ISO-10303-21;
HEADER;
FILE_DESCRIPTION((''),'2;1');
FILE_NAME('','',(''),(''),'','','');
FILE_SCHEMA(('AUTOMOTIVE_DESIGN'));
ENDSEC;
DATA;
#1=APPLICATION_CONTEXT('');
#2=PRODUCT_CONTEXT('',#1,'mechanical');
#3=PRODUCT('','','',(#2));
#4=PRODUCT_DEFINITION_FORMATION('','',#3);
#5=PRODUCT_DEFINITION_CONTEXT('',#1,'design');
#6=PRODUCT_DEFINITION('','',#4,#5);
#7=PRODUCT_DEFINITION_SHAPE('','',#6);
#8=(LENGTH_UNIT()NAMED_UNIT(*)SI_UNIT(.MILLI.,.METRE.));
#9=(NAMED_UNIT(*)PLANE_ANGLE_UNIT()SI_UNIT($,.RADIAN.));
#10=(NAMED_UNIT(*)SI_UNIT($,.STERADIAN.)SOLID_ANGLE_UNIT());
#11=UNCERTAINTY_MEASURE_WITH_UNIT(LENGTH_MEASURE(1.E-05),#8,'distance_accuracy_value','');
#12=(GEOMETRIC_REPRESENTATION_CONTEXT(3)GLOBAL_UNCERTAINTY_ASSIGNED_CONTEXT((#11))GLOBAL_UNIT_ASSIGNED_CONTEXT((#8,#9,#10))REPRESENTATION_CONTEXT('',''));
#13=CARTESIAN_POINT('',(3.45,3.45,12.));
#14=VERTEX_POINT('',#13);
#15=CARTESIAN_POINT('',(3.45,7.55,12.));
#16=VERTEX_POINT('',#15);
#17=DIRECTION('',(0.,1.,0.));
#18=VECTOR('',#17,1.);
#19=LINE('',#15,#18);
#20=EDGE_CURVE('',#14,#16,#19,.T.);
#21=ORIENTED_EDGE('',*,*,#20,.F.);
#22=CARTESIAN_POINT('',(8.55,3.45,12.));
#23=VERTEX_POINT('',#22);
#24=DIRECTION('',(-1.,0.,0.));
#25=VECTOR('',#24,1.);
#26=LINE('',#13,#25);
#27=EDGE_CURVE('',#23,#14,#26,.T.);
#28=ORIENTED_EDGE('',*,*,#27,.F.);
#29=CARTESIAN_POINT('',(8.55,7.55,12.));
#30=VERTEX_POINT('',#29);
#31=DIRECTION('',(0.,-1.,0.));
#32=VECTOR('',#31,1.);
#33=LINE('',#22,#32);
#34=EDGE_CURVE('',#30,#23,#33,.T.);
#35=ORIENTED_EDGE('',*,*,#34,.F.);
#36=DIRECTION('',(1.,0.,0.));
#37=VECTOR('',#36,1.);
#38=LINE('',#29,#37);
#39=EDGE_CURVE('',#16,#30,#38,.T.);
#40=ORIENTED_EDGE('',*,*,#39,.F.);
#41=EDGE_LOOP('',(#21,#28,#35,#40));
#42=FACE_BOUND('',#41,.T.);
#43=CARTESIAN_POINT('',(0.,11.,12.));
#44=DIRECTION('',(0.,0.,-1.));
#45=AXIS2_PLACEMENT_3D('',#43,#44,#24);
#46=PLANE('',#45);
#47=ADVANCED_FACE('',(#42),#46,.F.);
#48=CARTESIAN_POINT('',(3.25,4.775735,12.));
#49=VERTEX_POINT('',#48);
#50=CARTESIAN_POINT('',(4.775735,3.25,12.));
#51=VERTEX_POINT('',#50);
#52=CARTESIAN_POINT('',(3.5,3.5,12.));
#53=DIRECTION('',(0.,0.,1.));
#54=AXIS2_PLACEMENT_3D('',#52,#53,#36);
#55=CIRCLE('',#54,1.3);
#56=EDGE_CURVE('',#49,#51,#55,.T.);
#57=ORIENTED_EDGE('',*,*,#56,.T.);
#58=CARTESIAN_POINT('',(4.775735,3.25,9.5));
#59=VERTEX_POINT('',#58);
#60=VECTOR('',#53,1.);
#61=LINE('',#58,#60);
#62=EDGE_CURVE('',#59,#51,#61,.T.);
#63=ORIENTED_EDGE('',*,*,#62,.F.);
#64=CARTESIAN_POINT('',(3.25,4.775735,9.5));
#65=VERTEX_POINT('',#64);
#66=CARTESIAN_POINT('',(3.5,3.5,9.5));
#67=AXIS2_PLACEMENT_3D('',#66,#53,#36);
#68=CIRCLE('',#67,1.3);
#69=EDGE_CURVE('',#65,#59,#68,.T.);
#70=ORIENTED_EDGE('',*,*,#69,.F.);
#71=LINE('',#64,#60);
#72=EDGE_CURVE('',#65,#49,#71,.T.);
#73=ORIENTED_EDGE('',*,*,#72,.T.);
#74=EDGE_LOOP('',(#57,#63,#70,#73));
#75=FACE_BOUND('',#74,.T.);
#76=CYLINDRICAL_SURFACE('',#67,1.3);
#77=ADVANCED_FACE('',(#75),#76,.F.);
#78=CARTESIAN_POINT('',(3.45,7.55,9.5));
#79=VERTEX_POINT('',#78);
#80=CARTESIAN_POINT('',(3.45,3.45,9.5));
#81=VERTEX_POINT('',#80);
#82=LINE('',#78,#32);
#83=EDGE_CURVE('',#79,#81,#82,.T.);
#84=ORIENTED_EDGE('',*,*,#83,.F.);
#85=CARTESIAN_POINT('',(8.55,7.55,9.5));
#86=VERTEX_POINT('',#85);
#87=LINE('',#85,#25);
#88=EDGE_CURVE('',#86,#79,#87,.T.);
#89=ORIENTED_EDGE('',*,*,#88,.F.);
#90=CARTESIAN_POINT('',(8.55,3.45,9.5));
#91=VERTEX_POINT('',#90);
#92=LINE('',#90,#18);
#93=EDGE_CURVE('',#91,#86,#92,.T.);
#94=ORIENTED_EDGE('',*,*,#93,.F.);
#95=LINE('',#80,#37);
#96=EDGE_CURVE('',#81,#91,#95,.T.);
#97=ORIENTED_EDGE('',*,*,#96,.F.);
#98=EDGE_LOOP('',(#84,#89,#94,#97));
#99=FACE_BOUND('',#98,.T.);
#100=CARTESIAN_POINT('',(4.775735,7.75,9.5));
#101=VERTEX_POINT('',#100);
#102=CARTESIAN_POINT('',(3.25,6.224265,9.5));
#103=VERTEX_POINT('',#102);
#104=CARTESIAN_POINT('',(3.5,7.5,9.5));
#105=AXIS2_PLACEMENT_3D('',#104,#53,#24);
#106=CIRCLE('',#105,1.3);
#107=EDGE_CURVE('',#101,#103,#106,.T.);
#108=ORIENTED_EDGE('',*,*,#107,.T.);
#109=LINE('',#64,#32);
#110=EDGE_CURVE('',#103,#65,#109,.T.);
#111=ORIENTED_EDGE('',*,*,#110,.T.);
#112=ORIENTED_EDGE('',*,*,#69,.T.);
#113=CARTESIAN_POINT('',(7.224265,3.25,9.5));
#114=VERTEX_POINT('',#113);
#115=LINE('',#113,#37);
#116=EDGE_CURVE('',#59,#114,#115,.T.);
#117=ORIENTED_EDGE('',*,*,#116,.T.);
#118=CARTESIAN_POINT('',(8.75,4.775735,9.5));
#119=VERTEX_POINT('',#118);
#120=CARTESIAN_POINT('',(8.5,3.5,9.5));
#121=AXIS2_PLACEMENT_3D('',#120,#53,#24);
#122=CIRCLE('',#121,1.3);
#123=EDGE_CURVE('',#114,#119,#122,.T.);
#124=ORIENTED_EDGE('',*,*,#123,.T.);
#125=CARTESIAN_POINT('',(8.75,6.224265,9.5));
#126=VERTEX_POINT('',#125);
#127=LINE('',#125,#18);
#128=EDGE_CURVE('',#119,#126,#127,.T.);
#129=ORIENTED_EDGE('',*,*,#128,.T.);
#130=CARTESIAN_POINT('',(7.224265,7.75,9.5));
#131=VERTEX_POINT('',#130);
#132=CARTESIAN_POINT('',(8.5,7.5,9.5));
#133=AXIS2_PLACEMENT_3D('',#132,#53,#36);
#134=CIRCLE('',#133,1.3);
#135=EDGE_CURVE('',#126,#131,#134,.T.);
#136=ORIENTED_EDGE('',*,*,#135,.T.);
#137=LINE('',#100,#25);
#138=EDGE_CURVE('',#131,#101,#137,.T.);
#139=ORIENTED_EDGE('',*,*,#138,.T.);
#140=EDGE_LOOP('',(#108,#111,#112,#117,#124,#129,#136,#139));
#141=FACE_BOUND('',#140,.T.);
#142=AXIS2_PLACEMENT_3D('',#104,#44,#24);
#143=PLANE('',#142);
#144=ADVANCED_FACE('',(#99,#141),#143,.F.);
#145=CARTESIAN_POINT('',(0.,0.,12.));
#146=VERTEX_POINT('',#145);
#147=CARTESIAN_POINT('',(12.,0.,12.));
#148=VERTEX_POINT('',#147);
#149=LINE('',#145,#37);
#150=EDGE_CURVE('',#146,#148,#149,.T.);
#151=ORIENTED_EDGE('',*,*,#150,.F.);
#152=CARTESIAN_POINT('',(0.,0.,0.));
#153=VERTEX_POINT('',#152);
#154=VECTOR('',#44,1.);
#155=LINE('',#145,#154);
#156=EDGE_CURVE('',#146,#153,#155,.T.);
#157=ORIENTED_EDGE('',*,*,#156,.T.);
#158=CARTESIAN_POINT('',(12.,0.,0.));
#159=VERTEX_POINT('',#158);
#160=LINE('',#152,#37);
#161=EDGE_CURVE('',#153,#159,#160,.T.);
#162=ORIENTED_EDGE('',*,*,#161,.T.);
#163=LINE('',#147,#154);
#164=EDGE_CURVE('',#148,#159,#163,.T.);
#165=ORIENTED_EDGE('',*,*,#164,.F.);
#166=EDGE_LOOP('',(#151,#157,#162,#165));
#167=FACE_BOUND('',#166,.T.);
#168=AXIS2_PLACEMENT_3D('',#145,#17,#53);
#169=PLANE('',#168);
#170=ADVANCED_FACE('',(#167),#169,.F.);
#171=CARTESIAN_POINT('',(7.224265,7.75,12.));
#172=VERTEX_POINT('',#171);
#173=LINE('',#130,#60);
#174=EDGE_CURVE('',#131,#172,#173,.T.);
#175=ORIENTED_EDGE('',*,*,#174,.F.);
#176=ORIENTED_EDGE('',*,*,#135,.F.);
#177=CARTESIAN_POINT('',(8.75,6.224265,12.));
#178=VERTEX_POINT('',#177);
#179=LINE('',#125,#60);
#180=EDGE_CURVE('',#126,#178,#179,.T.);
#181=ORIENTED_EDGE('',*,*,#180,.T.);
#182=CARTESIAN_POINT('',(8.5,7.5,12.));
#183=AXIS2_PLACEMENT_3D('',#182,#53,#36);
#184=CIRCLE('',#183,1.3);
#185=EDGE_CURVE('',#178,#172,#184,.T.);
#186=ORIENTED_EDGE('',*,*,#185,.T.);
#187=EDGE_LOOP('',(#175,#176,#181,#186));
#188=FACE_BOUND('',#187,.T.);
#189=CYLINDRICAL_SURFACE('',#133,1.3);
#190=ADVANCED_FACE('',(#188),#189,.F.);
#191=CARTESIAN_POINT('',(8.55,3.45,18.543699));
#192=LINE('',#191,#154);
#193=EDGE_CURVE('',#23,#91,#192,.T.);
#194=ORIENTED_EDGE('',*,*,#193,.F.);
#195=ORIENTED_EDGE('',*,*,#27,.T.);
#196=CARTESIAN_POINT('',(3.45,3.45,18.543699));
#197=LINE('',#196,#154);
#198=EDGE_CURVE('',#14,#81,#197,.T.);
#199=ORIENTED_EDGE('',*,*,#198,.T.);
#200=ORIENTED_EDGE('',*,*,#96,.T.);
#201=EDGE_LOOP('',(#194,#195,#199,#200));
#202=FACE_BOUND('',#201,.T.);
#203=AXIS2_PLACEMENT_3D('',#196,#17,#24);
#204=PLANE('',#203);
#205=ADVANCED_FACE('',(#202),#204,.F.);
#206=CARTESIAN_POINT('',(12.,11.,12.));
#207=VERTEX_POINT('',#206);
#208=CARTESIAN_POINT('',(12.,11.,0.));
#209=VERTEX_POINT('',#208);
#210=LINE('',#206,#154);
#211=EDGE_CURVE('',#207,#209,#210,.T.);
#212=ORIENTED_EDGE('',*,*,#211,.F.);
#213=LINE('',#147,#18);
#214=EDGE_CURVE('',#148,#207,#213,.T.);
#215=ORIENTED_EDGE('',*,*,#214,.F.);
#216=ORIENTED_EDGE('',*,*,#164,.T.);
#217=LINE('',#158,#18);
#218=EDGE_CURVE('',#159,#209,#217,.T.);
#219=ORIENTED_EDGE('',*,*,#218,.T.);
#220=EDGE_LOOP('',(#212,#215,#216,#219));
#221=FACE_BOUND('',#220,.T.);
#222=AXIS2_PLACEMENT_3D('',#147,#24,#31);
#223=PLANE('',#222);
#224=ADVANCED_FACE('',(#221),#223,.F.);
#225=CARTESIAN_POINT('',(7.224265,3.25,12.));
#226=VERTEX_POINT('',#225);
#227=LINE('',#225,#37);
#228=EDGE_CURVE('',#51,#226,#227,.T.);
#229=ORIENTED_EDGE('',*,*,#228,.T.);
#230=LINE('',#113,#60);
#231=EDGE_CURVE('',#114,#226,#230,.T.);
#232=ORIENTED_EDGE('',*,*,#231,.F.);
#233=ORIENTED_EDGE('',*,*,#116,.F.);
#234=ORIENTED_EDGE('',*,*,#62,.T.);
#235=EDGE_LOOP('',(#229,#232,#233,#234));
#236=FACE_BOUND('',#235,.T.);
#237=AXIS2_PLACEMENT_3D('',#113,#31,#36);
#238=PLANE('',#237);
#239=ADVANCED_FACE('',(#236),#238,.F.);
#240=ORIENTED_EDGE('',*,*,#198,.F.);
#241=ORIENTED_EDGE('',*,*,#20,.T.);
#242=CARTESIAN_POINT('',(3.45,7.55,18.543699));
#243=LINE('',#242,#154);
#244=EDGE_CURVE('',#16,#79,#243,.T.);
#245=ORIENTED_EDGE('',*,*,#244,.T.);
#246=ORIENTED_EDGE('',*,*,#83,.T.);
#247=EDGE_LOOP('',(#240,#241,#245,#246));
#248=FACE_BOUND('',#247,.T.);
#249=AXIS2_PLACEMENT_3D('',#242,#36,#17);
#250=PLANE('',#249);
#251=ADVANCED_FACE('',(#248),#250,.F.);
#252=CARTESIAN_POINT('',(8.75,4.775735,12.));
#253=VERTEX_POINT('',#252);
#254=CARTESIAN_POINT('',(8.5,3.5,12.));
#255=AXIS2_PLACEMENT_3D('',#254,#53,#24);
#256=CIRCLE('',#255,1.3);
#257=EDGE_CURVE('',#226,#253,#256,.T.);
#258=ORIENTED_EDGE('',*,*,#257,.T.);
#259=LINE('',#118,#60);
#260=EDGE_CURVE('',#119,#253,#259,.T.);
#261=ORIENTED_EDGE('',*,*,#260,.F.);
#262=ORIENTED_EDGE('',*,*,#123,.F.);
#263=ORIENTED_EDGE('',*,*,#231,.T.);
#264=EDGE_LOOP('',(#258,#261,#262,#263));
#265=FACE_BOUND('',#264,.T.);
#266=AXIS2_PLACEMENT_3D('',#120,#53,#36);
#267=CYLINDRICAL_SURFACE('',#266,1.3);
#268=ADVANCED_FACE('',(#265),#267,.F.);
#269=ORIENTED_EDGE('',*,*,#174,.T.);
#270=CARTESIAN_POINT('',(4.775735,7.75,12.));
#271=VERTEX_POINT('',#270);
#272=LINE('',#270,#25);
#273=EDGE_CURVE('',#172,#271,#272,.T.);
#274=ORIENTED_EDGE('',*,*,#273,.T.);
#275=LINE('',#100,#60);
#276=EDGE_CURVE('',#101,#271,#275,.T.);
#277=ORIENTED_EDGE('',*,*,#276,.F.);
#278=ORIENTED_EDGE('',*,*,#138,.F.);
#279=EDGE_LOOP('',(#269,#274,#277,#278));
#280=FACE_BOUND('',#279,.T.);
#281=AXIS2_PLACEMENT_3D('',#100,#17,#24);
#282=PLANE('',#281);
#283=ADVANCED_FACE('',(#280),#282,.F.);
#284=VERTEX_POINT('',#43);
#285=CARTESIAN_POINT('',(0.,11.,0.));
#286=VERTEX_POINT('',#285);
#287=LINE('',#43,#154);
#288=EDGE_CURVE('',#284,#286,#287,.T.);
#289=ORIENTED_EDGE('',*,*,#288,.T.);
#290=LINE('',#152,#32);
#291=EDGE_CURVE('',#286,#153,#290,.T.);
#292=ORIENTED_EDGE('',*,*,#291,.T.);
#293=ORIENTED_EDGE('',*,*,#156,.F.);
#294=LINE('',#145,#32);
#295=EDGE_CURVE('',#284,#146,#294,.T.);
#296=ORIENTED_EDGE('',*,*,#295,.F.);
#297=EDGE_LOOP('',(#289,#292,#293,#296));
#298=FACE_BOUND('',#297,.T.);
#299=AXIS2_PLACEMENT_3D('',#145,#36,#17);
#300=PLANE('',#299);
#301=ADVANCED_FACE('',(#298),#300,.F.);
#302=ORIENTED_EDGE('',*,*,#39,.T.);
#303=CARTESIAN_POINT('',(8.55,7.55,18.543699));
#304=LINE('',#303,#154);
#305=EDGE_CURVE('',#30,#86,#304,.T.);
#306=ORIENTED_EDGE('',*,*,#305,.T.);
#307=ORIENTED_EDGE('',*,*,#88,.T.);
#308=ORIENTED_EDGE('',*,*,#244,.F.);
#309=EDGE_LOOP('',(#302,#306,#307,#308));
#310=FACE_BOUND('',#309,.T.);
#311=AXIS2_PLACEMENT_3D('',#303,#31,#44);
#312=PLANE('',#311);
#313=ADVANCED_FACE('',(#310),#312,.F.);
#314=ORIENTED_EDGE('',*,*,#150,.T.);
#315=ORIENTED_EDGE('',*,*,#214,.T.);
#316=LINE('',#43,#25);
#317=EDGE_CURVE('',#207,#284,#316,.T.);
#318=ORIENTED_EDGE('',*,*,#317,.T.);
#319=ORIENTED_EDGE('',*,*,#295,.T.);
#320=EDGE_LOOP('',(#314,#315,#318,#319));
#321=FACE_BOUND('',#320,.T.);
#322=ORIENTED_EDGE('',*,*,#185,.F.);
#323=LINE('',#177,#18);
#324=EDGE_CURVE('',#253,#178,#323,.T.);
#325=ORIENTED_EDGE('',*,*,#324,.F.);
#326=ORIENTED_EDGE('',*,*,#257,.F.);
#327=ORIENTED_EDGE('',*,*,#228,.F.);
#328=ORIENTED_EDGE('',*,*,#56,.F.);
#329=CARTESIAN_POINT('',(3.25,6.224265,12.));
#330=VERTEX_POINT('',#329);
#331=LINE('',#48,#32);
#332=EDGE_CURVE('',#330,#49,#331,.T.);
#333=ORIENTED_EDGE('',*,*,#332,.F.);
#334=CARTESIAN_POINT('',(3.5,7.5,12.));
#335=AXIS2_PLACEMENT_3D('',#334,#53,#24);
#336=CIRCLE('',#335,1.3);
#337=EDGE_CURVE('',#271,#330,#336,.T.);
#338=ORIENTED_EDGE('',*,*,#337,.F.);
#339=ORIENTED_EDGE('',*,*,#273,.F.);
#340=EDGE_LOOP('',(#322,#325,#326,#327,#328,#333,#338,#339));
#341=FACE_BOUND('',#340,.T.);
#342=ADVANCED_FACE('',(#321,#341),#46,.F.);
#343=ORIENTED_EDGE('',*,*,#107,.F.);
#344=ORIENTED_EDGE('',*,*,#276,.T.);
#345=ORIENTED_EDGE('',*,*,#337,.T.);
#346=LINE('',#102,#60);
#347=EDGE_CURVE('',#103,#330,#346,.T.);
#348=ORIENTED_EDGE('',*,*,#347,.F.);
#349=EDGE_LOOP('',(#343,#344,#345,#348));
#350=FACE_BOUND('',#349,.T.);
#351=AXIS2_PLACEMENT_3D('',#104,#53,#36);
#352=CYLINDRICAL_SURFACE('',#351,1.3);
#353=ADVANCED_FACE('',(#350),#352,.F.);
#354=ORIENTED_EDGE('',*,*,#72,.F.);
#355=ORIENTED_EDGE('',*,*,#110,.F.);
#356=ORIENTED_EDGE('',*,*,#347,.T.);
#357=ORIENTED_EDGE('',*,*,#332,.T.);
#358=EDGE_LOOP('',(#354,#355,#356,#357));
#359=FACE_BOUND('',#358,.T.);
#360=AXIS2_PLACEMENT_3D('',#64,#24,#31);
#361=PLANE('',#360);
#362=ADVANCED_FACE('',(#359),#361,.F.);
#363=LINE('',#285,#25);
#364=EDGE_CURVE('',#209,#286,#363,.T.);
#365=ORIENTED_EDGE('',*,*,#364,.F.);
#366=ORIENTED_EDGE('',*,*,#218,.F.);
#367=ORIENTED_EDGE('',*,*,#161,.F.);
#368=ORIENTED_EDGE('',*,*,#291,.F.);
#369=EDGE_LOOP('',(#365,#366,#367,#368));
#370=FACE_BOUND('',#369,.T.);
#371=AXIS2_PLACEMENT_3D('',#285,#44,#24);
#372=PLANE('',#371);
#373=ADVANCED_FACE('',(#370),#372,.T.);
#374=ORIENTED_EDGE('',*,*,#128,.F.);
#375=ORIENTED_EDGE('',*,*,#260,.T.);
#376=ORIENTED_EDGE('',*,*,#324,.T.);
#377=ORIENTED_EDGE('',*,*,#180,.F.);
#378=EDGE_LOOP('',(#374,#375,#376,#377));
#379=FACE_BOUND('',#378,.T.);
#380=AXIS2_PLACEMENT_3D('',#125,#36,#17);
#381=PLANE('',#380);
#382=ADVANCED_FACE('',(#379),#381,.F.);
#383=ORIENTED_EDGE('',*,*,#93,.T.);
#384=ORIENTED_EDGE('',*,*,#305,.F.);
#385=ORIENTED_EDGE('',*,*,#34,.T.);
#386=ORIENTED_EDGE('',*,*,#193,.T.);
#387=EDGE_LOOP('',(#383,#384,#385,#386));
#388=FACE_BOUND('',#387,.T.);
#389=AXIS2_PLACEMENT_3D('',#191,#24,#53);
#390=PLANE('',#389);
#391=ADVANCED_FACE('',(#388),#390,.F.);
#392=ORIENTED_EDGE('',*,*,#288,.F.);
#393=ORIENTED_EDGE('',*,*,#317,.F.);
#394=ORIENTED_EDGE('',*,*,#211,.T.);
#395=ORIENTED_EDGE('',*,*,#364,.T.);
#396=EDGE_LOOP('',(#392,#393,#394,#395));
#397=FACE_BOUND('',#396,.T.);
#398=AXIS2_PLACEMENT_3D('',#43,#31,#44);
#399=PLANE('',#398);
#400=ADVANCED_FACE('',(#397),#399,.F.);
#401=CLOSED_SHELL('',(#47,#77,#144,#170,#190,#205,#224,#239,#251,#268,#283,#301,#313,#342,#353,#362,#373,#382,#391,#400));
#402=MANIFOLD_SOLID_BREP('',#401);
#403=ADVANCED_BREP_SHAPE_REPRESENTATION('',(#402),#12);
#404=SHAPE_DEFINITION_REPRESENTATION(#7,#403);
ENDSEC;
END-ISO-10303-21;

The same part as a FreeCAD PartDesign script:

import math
import FreeCAD as App
import Part
import Sketcher

V = App.Vector

doc = App.newDocument("Part")
body = doc.addObject("PartDesign::Body", "Body")

# Sketch on XY plane
sketch1 = body.newObject("Sketcher::SketchObject", "Sketch")
sketch1.AttachmentSupport = (doc.getObject("XY_Plane"), [""])
sketch1.MapMode = "FlatFace"
sketch1.addGeometry(Part.LineSegment(V(0, 11, 0), V(0, 0, 0)), False)
sketch1.addGeometry(Part.LineSegment(V(0, 0, 0), V(12, 0, 0)), False)
sketch1.addGeometry(Part.LineSegment(V(12, 0, 0), V(12, 11, 0)), False)
sketch1.addGeometry(Part.LineSegment(V(12, 11, 0), V(0, 11, 0)), False)
sketch1.addConstraint(Sketcher.Constraint("Coincident", 0, 2, 1, 1))
sketch1.addConstraint(Sketcher.Constraint("Coincident", 1, 2, 2, 1))
sketch1.addConstraint(Sketcher.Constraint("Coincident", 2, 2, 3, 1))
sketch1.addConstraint(Sketcher.Constraint("Coincident", 3, 2, 0, 1))
sketch1.addConstraint(Sketcher.Constraint("Vertical", 0))
sketch1.addConstraint(Sketcher.Constraint("Horizontal", 1))
sketch1.addConstraint(Sketcher.Constraint("Vertical", 2))
sketch1.addConstraint(Sketcher.Constraint("Horizontal", 3))
sketch1.addConstraint(Sketcher.Constraint("Coincident", 0, 2, -1, 1))
sketch1.addConstraint(Sketcher.Constraint("DistanceX", 1, 1, 1, 2, 12.0))
sketch1.addConstraint(Sketcher.Constraint("DistanceY", 0, 2, 0, 1, 11.0))
pad1 = body.newObject("PartDesign::Pad", "Pad")
pad1.Profile = sketch1
pad1.Length = 12

# Sketch on XY plane
sketch2 = body.newObject("Sketcher::SketchObject", "Sketch001")
sketch2.AttachmentSupport = (doc.getObject("XY_Plane"), [""])
sketch2.MapMode = "FlatFace"
sketch2.AttachmentOffset = App.Placement(V(0, 0, 12), App.Rotation())
sketch2.addGeometry(Part.LineSegment(V(7.2, 7.8, 0), V(4.8, 7.8, 0)), False)
sketch2.addGeometry(Part.ArcOfCircle(Part.Circle(V(3.5, 7.5, 0), V(0, 0, 1), 1.3), math.radians(11), math.radians(259)), False)
sketch2.addGeometry(Part.LineSegment(V(3.2, 6.2, 0), V(3.2, 4.8, 0)), False)
sketch2.addGeometry(Part.ArcOfCircle(Part.Circle(V(3.5, 3.5, 0), V(0, 0, 1), 1.3), math.radians(101), math.radians(349)), False)
sketch2.addGeometry(Part.LineSegment(V(4.8, 3.2, 0), V(7.2, 3.2, 0)), False)
sketch2.addGeometry(Part.ArcOfCircle(Part.Circle(V(8.5, 3.5, 0), V(0, 0, 1), 1.3), math.radians(-169), math.radians(79)), False)
sketch2.addGeometry(Part.LineSegment(V(8.8, 4.8, 0), V(8.8, 6.2, 0)), False)
sketch2.addGeometry(Part.ArcOfCircle(Part.Circle(V(8.5, 7.5, 0), V(0, 0, 1), 1.3), math.radians(-79), math.radians(169)), False)
sketch2.addConstraint(Sketcher.Constraint("Coincident", 0, 2, 1, 1))
sketch2.addConstraint(Sketcher.Constraint("Coincident", 1, 2, 2, 1))
sketch2.addConstraint(Sketcher.Constraint("Coincident", 2, 2, 3, 1))
sketch2.addConstraint(Sketcher.Constraint("Coincident", 3, 2, 4, 1))
sketch2.addConstraint(Sketcher.Constraint("Coincident", 4, 2, 5, 1))
sketch2.addConstraint(Sketcher.Constraint("Coincident", 5, 2, 6, 1))
sketch2.addConstraint(Sketcher.Constraint("Coincident", 6, 2, 7, 1))
sketch2.addConstraint(Sketcher.Constraint("Coincident", 7, 2, 0, 1))
sketch2.addConstraint(Sketcher.Constraint("Horizontal", 0))
sketch2.addConstraint(Sketcher.Constraint("Vertical", 2))
sketch2.addConstraint(Sketcher.Constraint("Horizontal", 4))
sketch2.addConstraint(Sketcher.Constraint("Vertical", 6))
sketch2.addConstraint(Sketcher.Constraint("Equal", 1, 3))
sketch2.addConstraint(Sketcher.Constraint("Equal", 3, 5))
sketch2.addConstraint(Sketcher.Constraint("Equal", 5, 7))
sketch2.addConstraint(Sketcher.Constraint("Horizontal", 3, 3, 5, 3))
sketch2.addConstraint(Sketcher.Constraint("Horizontal", 1, 3, 7, 3))
sketch2.addConstraint(Sketcher.Constraint("Horizontal", 2, 2, 5, 2))
sketch2.addConstraint(Sketcher.Constraint("Horizontal", 1, 2, 6, 2))
sketch2.addConstraint(Sketcher.Constraint("Vertical", 1, 3, 3, 3))
sketch2.addConstraint(Sketcher.Constraint("Vertical", 0, 2, 3, 2))
sketch2.addConstraint(Sketcher.Constraint("Radius", 1, 1.3))
sketch2.addConstraint(Sketcher.Constraint("DistanceY", 3, 3, 1, 3, 4.0))
sketch2.addConstraint(Sketcher.Constraint("DistanceX", 3, 3, 5, 3, 5.0))
sketch2.addConstraint(Sketcher.Constraint("DistanceX", -1, 1, 1, 3, 3.5))
sketch2.addConstraint(Sketcher.Constraint("DistanceY", -1, 1, 1, 3, 7.5))
sketch2.addConstraint(Sketcher.Constraint("DistanceY", -1, 1, 0, 2, 7.75))
sketch2.addConstraint(Sketcher.Constraint("DistanceX", -1, 1, 1, 2, 3.25))
pocket1 = body.newObject("PartDesign::Pocket", "Pocket")
pocket1.Profile = sketch2
pocket1.Length = 2.5

# Sketch on XY plane
sketch3 = body.newObject("Sketcher::SketchObject", "Sketch002")
sketch3.AttachmentSupport = (doc.getObject("XY_Plane"), [""])
sketch3.MapMode = "FlatFace"
sketch3.AttachmentOffset = App.Placement(V(0, 0, 9.5), App.Rotation())
sketch3.addGeometry(Part.LineSegment(V(3.5, 7.5, 0), V(3.5, 3.5, 0)), False)
sketch3.addGeometry(Part.LineSegment(V(3.5, 3.5, 0), V(8.6, 3.5, 0)), False)
sketch3.addGeometry(Part.LineSegment(V(8.6, 3.5, 0), V(8.6, 7.5, 0)), False)
sketch3.addGeometry(Part.LineSegment(V(8.6, 7.5, 0), V(3.5, 7.5, 0)), False)
sketch3.addConstraint(Sketcher.Constraint("Coincident", 0, 2, 1, 1))
sketch3.addConstraint(Sketcher.Constraint("Coincident", 1, 2, 2, 1))
sketch3.addConstraint(Sketcher.Constraint("Coincident", 2, 2, 3, 1))
sketch3.addConstraint(Sketcher.Constraint("Coincident", 3, 2, 0, 1))
sketch3.addConstraint(Sketcher.Constraint("Vertical", 0))
sketch3.addConstraint(Sketcher.Constraint("Horizontal", 1))
sketch3.addConstraint(Sketcher.Constraint("Vertical", 2))
sketch3.addConstraint(Sketcher.Constraint("Horizontal", 3))
sketch3.addConstraint(Sketcher.Constraint("DistanceX", 1, 1, 1, 2, 5.1))
sketch3.addConstraint(Sketcher.Constraint("DistanceY", 0, 2, 0, 1, 4.1))
sketch3.addConstraint(Sketcher.Constraint("DistanceX", -1, 1, 0, 2, 3.45))
sketch3.addConstraint(Sketcher.Constraint("DistanceY", -1, 1, 0, 2, 3.45))
pad2 = body.newObject("PartDesign::Pad", "Pad001")
pad2.Profile = sketch3
pad2.Length = 2.5

doc.recompute()
